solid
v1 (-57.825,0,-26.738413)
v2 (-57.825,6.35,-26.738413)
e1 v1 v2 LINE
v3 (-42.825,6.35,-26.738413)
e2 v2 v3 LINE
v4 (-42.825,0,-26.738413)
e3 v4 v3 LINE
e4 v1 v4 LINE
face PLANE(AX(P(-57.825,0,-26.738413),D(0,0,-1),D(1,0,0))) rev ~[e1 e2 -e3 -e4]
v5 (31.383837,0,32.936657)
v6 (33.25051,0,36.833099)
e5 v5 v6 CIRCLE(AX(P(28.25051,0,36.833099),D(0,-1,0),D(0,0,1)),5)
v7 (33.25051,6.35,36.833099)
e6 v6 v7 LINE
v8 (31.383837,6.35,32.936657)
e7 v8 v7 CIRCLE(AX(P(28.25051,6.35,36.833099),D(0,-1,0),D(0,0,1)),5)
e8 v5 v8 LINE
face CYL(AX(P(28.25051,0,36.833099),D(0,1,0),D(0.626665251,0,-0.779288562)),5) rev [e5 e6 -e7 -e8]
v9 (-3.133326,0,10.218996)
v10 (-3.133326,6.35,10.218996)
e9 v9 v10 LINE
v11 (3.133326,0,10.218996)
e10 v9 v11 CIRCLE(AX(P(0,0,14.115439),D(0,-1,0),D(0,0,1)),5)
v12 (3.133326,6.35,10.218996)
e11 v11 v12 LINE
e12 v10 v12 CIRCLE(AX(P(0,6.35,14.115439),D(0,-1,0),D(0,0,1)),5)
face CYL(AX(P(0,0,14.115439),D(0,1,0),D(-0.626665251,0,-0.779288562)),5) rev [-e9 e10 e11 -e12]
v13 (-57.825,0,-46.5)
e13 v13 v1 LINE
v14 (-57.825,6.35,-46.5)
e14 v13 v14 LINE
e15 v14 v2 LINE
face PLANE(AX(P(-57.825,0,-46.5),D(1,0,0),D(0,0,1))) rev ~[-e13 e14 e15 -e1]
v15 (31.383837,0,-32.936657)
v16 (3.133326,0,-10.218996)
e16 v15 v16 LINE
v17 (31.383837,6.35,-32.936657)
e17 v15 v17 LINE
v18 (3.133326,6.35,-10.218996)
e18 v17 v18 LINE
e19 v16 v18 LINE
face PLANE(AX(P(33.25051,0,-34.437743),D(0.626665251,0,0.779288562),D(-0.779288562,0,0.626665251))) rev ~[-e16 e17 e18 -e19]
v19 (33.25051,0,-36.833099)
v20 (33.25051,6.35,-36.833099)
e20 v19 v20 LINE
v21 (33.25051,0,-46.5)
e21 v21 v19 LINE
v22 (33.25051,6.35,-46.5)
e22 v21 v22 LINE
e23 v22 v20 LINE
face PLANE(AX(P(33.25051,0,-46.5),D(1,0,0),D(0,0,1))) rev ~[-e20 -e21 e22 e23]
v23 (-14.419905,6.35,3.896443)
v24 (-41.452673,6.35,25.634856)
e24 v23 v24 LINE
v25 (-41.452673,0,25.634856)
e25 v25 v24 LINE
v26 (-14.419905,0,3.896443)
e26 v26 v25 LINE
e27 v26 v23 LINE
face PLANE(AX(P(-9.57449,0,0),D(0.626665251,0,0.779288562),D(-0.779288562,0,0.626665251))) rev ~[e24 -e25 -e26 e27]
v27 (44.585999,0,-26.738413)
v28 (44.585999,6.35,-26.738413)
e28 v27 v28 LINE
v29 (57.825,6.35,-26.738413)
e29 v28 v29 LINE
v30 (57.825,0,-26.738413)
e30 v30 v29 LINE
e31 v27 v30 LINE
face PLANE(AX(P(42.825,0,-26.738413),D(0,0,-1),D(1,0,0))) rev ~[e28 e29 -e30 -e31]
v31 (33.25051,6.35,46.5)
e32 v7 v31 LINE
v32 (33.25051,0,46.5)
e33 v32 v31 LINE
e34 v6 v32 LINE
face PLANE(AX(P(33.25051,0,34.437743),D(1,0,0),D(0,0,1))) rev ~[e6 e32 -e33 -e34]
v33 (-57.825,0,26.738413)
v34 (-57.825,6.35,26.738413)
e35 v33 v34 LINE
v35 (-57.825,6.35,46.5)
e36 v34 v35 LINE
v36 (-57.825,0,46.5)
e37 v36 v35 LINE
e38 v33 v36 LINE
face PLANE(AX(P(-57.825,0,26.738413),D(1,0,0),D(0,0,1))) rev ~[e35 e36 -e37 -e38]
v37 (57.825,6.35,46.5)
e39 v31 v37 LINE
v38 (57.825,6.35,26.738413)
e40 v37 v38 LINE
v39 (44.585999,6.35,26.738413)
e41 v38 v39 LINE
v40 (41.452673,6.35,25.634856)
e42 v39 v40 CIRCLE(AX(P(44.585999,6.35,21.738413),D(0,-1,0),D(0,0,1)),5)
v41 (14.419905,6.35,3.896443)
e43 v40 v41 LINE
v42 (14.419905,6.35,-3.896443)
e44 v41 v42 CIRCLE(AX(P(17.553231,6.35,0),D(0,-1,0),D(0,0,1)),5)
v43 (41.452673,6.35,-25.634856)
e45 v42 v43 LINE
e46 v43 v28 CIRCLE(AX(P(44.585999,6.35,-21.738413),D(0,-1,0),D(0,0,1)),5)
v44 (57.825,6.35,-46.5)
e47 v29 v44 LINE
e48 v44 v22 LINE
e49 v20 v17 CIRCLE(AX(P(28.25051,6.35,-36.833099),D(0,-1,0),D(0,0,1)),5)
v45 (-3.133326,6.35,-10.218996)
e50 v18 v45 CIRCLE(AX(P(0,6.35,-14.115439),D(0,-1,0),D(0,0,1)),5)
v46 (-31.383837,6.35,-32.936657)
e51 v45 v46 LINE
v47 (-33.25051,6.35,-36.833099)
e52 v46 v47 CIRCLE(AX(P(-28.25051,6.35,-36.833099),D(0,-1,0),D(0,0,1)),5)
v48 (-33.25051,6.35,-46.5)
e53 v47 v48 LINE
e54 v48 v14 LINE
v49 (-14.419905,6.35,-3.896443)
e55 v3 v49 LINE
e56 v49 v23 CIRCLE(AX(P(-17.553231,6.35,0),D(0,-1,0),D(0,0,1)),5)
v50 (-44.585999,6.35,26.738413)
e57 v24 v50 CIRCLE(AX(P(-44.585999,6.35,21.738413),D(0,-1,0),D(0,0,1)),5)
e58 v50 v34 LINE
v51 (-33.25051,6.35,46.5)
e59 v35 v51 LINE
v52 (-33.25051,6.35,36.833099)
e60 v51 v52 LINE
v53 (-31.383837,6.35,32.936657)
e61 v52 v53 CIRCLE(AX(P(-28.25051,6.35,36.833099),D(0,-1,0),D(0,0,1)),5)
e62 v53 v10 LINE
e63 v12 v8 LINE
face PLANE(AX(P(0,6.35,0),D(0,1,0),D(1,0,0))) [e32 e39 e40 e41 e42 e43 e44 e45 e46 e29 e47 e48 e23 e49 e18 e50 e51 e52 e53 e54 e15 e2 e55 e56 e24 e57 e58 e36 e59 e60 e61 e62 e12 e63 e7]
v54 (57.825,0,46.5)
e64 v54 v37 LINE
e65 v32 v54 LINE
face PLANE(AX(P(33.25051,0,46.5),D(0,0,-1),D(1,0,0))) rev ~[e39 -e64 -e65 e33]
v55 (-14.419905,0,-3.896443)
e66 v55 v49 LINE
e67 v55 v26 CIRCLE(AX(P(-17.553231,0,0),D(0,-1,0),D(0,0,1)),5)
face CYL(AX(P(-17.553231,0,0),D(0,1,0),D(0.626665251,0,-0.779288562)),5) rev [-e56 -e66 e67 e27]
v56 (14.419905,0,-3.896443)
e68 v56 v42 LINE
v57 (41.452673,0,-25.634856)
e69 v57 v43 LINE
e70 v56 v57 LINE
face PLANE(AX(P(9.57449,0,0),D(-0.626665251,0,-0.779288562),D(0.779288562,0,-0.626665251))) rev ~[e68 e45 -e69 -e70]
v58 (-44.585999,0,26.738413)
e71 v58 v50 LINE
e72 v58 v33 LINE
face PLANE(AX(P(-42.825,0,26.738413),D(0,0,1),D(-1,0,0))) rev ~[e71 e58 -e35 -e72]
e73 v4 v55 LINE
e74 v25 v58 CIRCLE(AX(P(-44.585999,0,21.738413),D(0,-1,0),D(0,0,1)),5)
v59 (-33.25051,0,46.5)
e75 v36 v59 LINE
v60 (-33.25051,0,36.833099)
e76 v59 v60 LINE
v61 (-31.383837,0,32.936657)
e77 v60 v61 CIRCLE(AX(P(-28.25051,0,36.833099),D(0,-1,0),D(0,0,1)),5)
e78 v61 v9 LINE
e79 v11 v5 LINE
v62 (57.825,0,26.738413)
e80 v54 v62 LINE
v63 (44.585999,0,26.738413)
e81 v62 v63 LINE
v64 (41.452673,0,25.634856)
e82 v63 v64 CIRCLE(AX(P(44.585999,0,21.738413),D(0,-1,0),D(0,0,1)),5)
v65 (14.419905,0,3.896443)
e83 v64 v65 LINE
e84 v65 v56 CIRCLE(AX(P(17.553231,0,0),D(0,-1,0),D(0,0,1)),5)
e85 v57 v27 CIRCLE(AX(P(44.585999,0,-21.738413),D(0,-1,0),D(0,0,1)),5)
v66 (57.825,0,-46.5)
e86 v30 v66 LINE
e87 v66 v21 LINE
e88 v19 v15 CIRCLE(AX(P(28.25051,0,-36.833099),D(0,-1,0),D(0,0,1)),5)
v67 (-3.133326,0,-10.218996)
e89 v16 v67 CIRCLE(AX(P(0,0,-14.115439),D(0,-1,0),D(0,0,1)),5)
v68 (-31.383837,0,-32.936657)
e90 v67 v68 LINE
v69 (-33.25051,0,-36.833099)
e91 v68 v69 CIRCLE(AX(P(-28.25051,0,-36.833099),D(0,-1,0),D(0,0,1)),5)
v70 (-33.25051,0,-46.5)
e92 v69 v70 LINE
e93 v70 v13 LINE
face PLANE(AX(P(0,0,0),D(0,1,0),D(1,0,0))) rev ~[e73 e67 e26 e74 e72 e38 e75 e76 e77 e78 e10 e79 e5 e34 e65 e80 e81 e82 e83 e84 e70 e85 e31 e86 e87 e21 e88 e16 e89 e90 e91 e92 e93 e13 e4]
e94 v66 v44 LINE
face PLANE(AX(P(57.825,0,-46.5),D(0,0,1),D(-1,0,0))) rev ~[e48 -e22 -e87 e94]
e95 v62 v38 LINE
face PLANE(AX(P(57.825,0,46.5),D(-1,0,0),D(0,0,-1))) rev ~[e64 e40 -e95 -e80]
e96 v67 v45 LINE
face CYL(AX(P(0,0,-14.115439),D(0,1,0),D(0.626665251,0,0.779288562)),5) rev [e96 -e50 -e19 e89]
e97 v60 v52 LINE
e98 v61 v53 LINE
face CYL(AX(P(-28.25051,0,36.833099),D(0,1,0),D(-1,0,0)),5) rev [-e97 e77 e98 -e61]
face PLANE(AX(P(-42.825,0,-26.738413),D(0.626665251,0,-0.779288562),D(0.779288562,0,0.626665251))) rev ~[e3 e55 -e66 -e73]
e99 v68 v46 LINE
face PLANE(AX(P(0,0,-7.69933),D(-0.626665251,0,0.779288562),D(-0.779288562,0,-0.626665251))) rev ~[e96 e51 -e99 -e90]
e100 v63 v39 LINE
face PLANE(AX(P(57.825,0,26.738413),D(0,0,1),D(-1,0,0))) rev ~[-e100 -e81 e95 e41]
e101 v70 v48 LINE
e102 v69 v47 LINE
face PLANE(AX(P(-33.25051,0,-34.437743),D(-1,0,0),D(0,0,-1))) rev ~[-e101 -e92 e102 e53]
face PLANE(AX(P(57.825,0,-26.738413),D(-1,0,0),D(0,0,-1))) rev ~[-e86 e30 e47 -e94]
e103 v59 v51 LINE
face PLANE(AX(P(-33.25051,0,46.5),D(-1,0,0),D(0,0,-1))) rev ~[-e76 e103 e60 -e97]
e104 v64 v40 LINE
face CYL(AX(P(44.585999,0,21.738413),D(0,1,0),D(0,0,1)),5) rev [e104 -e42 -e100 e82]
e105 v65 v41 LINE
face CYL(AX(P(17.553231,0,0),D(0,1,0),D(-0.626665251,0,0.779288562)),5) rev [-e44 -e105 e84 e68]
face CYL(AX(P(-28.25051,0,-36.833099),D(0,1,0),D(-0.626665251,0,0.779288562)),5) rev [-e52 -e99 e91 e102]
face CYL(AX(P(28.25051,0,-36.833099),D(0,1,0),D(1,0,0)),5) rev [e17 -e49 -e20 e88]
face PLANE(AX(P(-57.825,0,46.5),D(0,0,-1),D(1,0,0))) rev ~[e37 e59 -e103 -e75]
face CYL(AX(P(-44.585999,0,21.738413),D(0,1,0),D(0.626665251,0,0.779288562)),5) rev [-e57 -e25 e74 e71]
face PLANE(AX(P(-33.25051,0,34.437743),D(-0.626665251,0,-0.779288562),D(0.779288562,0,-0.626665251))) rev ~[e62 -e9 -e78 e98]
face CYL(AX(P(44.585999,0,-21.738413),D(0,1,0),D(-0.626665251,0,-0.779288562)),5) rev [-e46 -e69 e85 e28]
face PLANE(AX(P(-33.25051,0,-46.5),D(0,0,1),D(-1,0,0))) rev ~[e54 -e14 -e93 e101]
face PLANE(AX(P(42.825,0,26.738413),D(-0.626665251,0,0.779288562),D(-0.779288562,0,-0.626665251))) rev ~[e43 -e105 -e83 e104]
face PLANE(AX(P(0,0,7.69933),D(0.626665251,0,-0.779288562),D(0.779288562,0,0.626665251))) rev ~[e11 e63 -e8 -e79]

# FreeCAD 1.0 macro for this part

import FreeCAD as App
import Part
import Sketcher
from FreeCAD import Vector


def edges_at(feature, points):
    """Names of the edges that pass closest to the given points."""
    edges = feature.Shape.Edges
    near = lambda p: min(range(len(edges)), key=lambda i: edges[i].distToShape(Part.Vertex(*p))[0])
    return sorted({f"Edge{near(p) + 1}" for p in points})

doc = App.newDocument("Part")
body = doc.addObject("PartDesign::Body", "Body")

sketch1 = doc.addObject("Sketcher::SketchObject", "Sketch")
body.addObject(sketch1)
sketch1.AttachmentSupport = (doc.XZ_Plane, [""])
sketch1.MapMode = "FlatFace"
sketch1.addGeometry([
    Part.LineSegment(Vector(-58, -27, 0), Vector(-43, -27, 0)),
    Part.LineSegment(Vector(-43, -27, 0), Vector(-10, 0, 0)),
    Part.LineSegment(Vector(-10, 0, 0), Vector(-43, 27, 0)),
    Part.LineSegment(Vector(-43, 27, 0), Vector(-58, 27, 0)),
    Part.LineSegment(Vector(-58, 27, 0), Vector(-58, 46, 0)),
    Part.LineSegment(Vector(-58, 46, 0), Vector(-33, 46, 0)),
    Part.LineSegment(Vector(-33, 46, 0), Vector(-33, 34, 0)),
    Part.LineSegment(Vector(-33, 34, 0), Vector(0, 8, 0)),
    Part.LineSegment(Vector(0, 8, 0), Vector(33, 34, 0)),
    Part.LineSegment(Vector(33, 34, 0), Vector(33, 46, 0)),
    Part.LineSegment(Vector(33, 46, 0), Vector(58, 46, 0)),
    Part.LineSegment(Vector(58, 46, 0), Vector(58, 27, 0)),
    Part.LineSegment(Vector(58, 27, 0), Vector(43, 27, 0)),
    Part.LineSegment(Vector(43, 27, 0), Vector(10, 0, 0)),
    Part.LineSegment(Vector(10, 0, 0), Vector(43, -27, 0)),
    Part.LineSegment(Vector(43, -27, 0), Vector(58, -27, 0)),
    Part.LineSegment(Vector(58, -27, 0), Vector(58, -46, 0)),
    Part.LineSegment(Vector(58, -46, 0), Vector(33, -46, 0)),
    Part.LineSegment(Vector(33, -46, 0), Vector(33, -34, 0)),
    Part.LineSegment(Vector(33, -34, 0), Vector(0, -8, 0)),
    Part.LineSegment(Vector(0, -8, 0), Vector(-33, -34, 0)),
    Part.LineSegment(Vector(-33, -34, 0), Vector(-33, -46, 0)),
    Part.LineSegment(Vector(-33, -46, 0), Vector(-58, -46, 0)),
    Part.LineSegment(Vector(-58, -46, 0), Vector(-58, -27, 0)),
], False)
sketch1.addConstraint([
    Sketcher.Constraint("Coincident", 0, 2, 1, 1),
    Sketcher.Constraint("Coincident", 1, 2, 2, 1),
    Sketcher.Constraint("Coincident", 2, 2, 3, 1),
    Sketcher.Constraint("Coincident", 3, 2, 4, 1),
    Sketcher.Constraint("Coincident", 4, 2, 5, 1),
    Sketcher.Constraint("Coincident", 5, 2, 6, 1),
    Sketcher.Constraint("Coincident", 6, 2, 7, 1),
    Sketcher.Constraint("Coincident", 7, 2, 8, 1),
    Sketcher.Constraint("Coincident", 8, 2, 9, 1),
    Sketcher.Constraint("Coincident", 9, 2, 10, 1),
    Sketcher.Constraint("Coincident", 10, 2, 11, 1),
    Sketcher.Constraint("Coincident", 11, 2, 12, 1),
    Sketcher.Constraint("Coincident", 12, 2, 13, 1),
    Sketcher.Constraint("Coincident", 13, 2, 14, 1),
    Sketcher.Constraint("Coincident", 14, 2, 15, 1),
    Sketcher.Constraint("Coincident", 15, 2, 16, 1),
    Sketcher.Constraint("Coincident", 16, 2, 17, 1),
    Sketcher.Constraint("Coincident", 17, 2, 18, 1),
    Sketcher.Constraint("Coincident", 18, 2, 19, 1),
    Sketcher.Constraint("Coincident", 19, 2, 20, 1),
    Sketcher.Constraint("Coincident", 20, 2, 21, 1),
    Sketcher.Constraint("Coincident", 21, 2, 22, 1),
    Sketcher.Constraint("Coincident", 22, 2, 23, 1),
    Sketcher.Constraint("Coincident", 23, 2, 0, 1),
    Sketcher.Constraint("Horizontal", 0),
    Sketcher.Constraint("Horizontal", 3),
    Sketcher.Constraint("Vertical", 4),
    Sketcher.Constraint("Horizontal", 5),
    Sketcher.Constraint("Vertical", 6),
    Sketcher.Constraint("Vertical", 9),
    Sketcher.Constraint("Horizontal", 10),
    Sketcher.Constraint("Vertical", 11),
    Sketcher.Constraint("Horizontal", 12),
    Sketcher.Constraint("Horizontal", 15),
    Sketcher.Constraint("Vertical", 16),
    Sketcher.Constraint("Horizontal", 17),
    Sketcher.Constraint("Vertical", 18),
    Sketcher.Constraint("Vertical", 21),
    Sketcher.Constraint("Horizontal", 22),
    Sketcher.Constraint("Vertical", 23),
    Sketcher.Constraint("Symmetric", 0, 2, 12, 2, -1, 1),
    Sketcher.Constraint("Symmetric", 1, 2, 13, 2, -1, 1),
    Sketcher.Constraint("Symmetric", 2, 2, 14, 2, -1, 1),
    Sketcher.Constraint("Symmetric", 4, 2, 16, 2, -1, 1),
    Sketcher.Constraint("Symmetric", 6, 2, 18, 2, -1, 1),
    Sketcher.Constraint("Symmetric", 7, 2, 19, 2, -1, 1),
    Sketcher.Constraint("Symmetric", 8, 2, 20, 2, -1, 1),
    Sketcher.Constraint("Symmetric", 10, 2, 22, 2, -1, 1),
    Sketcher.Constraint("Symmetric", 6, 2, 8, 2, -2),
    Sketcher.Constraint("Symmetric", 4, 2, 10, 2, -2),
    Sketcher.Constraint("Symmetric", 2, 2, 12, 2, -2),
    Sketcher.Constraint("PointOnObject", 1, 2, -1),
    Sketcher.Constraint("PointOnObject", 7, 2, -2),
    Sketcher.Constraint("Parallel", 2, 7),
    Sketcher.Constraint("Equal", 2, 7),
    Sketcher.Constraint("DistanceX", 0, 1, 0, 2, 15.0),
    Sketcher.Constraint("DistanceY", -1, 1, 4, 2, 46.5),
    Sketcher.Constraint("DistanceX", 0, 2, -1, 1, 42.825),
    Sketcher.Constraint("DistanceX", 5, 1, 5, 2, 24.57449),
    Sketcher.Constraint("DistanceY", 4, 1, 4, 2, 19.761587),
    Sketcher.Constraint("DistanceY", 6, 2, 6, 1, 12.062257),
])
pad1 = doc.addObject("PartDesign::Pad", "Pad")
body.addObject(pad1)
pad1.Profile = sketch1
pad1.Length = 6.35
pad1.Reversed = True
doc.recompute()

fillet = doc.addObject("PartDesign::Fillet", "Fillet")
body.addObject(fillet)
fillet.Base = (pad1, edges_at(pad1, [
    (-33.251, 3.175, -34.438),
    (0, 3.175, -7.699),
    (33.251, 3.175, -34.438),
    (42.825, 3.175, -26.738),
    (9.574, 3.175, 0),
    (42.825, 3.175, 26.738),
    (33.251, 3.175, 34.438),
    (0, 3.175, 7.699),
    (-33.251, 3.175, 34.438),
    (-42.825, 3.175, 26.738),
    (-9.574, 3.175, 0),
]))
fillet.Radius = 5

doc.recompute()
